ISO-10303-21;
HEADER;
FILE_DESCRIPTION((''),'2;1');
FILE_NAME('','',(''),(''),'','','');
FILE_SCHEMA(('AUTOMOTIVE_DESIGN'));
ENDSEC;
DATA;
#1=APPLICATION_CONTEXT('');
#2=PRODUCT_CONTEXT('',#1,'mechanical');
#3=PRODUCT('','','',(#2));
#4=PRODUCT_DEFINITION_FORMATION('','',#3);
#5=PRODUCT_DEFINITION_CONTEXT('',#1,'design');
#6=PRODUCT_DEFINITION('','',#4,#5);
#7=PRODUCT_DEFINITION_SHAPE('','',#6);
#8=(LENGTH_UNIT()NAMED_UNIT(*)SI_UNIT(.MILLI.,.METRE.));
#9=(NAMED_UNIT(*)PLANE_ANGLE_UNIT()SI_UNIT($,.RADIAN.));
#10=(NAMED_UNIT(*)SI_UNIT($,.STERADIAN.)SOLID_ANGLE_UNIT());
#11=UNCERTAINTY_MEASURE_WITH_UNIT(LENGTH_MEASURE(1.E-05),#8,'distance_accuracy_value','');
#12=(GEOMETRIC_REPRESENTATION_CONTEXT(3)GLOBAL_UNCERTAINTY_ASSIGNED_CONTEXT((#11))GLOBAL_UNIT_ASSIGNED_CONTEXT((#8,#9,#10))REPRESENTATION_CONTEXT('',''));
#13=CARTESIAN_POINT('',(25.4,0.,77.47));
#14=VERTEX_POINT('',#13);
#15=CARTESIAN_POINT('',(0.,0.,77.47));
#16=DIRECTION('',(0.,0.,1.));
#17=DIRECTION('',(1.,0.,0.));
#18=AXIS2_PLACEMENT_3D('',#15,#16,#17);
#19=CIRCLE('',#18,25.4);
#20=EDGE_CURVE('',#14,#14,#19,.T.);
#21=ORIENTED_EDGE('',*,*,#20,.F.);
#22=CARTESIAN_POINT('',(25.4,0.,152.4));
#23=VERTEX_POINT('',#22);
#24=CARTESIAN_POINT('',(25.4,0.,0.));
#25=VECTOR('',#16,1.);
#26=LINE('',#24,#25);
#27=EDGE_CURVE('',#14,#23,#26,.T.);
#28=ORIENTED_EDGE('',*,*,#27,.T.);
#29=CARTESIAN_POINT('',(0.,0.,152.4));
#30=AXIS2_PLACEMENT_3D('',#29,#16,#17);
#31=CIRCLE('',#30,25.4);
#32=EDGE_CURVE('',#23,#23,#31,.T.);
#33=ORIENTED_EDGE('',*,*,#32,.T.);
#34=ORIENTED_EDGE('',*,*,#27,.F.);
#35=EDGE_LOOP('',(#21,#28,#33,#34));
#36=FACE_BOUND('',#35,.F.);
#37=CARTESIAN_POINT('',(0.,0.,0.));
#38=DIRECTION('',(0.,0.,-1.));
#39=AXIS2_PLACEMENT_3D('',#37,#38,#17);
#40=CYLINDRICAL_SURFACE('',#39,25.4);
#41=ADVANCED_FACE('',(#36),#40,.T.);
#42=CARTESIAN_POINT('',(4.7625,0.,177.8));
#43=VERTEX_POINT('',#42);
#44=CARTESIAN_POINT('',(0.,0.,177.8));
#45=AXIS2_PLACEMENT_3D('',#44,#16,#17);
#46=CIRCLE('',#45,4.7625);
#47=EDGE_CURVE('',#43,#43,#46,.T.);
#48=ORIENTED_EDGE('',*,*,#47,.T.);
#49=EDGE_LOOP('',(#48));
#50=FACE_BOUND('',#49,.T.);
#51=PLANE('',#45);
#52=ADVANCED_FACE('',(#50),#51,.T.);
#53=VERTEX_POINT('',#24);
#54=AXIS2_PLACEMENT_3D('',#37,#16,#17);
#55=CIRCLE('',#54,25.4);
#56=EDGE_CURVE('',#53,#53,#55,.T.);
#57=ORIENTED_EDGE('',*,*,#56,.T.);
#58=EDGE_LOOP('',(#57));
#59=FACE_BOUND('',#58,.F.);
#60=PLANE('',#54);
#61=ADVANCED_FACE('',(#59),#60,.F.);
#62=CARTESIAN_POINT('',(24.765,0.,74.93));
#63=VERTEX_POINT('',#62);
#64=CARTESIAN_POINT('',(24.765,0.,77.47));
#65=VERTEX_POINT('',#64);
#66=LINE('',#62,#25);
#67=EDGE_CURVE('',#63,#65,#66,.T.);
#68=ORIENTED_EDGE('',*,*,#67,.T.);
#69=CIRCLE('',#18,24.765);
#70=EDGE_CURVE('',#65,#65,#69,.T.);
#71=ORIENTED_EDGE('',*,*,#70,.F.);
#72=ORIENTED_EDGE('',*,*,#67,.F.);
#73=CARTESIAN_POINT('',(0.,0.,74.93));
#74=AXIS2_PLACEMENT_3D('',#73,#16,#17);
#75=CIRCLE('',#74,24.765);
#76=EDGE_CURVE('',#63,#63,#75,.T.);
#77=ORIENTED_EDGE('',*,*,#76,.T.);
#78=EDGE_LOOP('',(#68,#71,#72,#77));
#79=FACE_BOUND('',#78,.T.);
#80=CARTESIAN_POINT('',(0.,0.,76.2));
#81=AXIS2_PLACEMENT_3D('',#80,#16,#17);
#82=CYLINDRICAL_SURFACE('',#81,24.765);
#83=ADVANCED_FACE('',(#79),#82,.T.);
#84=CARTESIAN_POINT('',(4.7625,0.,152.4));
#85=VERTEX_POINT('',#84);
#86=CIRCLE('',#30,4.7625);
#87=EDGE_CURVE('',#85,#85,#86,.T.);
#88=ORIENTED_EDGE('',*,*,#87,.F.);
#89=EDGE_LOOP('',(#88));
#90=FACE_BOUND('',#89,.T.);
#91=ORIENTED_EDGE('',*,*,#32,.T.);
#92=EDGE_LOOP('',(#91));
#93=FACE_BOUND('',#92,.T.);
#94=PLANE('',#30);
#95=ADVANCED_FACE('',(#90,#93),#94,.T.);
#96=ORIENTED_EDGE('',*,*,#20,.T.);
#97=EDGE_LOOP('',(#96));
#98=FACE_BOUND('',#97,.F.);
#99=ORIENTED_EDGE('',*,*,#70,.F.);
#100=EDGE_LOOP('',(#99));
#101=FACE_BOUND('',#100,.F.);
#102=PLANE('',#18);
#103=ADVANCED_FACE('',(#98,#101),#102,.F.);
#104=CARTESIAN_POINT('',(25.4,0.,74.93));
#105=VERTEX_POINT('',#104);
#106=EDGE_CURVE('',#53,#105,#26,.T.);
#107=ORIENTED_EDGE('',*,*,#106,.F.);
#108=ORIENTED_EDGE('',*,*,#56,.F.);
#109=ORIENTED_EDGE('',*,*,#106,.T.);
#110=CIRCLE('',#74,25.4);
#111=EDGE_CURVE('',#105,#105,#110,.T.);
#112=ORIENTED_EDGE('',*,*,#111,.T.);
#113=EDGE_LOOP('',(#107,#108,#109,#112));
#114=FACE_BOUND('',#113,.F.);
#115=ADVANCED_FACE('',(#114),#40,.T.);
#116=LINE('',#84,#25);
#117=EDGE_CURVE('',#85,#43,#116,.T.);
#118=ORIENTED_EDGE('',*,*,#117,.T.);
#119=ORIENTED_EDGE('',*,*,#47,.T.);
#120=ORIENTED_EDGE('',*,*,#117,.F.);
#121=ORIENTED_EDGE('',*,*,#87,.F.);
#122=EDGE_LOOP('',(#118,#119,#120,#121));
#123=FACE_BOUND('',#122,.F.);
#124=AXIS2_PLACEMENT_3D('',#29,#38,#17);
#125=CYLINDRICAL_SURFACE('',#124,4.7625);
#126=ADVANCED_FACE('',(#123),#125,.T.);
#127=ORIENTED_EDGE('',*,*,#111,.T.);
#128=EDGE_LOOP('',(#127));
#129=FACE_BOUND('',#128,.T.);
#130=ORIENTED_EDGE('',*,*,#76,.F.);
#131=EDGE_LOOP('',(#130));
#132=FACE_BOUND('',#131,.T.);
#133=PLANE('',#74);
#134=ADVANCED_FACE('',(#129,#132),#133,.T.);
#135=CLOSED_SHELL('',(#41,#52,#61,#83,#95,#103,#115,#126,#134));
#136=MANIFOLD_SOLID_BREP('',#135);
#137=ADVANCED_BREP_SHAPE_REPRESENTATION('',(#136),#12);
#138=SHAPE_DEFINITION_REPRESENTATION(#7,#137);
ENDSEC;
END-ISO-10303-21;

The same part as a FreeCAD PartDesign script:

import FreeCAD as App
import Part
import Sketcher
Q = App.Units.Quantity

doc = App.newDocument("Part")
body = doc.addObject("PartDesign::Body", "Body")

# Sketch on XY plane
sketch1 = body.newObject("Sketcher::SketchObject", "Sketch")
sketch1.AttachmentSupport = (doc.getObject("XY_Plane"), [""])
sketch1.MapMode = "FlatFace"
sketch1.addGeometry(Part.Circle(App.Vector(0, 0, 0), App.Vector(0, 0, 1), 25.4), False)
sketch1.addConstraint(Sketcher.Constraint("Coincident", 0, 3, -1, 1))
sketch1.addConstraint(Sketcher.Constraint("Diameter", 0, Q("2 in")))
pad1 = body.newObject("PartDesign::Pad", "Pad")
pad1.Profile = sketch1
pad1.Length = Q("6 in")

# Sketch on XY plane
sketch2 = body.newObject("Sketcher::SketchObject", "Sketch001")
sketch2.AttachmentSupport = (doc.getObject("XY_Plane"), [""])
sketch2.MapMode = "FlatFace"
sketch2.AttachmentOffset = App.Placement(App.Vector(0, 0, 6 * 25.4), App.Rotation())
sketch2.addGeometry(Part.Circle(App.Vector(0, 0, 0), App.Vector(0, 0, 1), 4.7625), False)
sketch2.addConstraint(Sketcher.Constraint("Coincident", 0, 3, -1, 1))
sketch2.addConstraint(Sketcher.Constraint("Diameter", 0, Q("0.375 in")))
pad2 = body.newObject("PartDesign::Pad", "Pad001")
pad2.Profile = sketch2
pad2.Length = Q("1 in")

# Sketch on XY plane
sketch3 = body.newObject("Sketcher::SketchObject", "Sketch002")
sketch3.AttachmentSupport = (doc.getObject("XY_Plane"), [""])
sketch3.MapMode = "FlatFace"
sketch3.AttachmentOffset = App.Placement(App.Vector(0, 0, 3 * 25.4), App.Rotation())
sketch3.addGeometry(Part.Circle(App.Vector(0, 0, 0), App.Vector(0, 0, 1), 25.4), False)
sketch3.addGeometry(Part.Circle(App.Vector(0, 0, 0), App.Vector(0, 0, 1), 24.765), False)
sketch3.addConstraint(Sketcher.Constraint("Coincident", 0, 3, -1, 1))
sketch3.addConstraint(Sketcher.Constraint("Coincident", 1, 3, -1, 1))
sketch3.addConstraint(Sketcher.Constraint("Diameter", 0, Q("2 in")))
sketch3.addConstraint(Sketcher.Constraint("Diameter", 1, Q("1.95 in")))
pocket1 = body.newObject("PartDesign::Pocket", "Pocket")
pocket1.Profile = sketch3
pocket1.Length = Q("0.1 in")
pocket1.Midplane = True

doc.recompute()
